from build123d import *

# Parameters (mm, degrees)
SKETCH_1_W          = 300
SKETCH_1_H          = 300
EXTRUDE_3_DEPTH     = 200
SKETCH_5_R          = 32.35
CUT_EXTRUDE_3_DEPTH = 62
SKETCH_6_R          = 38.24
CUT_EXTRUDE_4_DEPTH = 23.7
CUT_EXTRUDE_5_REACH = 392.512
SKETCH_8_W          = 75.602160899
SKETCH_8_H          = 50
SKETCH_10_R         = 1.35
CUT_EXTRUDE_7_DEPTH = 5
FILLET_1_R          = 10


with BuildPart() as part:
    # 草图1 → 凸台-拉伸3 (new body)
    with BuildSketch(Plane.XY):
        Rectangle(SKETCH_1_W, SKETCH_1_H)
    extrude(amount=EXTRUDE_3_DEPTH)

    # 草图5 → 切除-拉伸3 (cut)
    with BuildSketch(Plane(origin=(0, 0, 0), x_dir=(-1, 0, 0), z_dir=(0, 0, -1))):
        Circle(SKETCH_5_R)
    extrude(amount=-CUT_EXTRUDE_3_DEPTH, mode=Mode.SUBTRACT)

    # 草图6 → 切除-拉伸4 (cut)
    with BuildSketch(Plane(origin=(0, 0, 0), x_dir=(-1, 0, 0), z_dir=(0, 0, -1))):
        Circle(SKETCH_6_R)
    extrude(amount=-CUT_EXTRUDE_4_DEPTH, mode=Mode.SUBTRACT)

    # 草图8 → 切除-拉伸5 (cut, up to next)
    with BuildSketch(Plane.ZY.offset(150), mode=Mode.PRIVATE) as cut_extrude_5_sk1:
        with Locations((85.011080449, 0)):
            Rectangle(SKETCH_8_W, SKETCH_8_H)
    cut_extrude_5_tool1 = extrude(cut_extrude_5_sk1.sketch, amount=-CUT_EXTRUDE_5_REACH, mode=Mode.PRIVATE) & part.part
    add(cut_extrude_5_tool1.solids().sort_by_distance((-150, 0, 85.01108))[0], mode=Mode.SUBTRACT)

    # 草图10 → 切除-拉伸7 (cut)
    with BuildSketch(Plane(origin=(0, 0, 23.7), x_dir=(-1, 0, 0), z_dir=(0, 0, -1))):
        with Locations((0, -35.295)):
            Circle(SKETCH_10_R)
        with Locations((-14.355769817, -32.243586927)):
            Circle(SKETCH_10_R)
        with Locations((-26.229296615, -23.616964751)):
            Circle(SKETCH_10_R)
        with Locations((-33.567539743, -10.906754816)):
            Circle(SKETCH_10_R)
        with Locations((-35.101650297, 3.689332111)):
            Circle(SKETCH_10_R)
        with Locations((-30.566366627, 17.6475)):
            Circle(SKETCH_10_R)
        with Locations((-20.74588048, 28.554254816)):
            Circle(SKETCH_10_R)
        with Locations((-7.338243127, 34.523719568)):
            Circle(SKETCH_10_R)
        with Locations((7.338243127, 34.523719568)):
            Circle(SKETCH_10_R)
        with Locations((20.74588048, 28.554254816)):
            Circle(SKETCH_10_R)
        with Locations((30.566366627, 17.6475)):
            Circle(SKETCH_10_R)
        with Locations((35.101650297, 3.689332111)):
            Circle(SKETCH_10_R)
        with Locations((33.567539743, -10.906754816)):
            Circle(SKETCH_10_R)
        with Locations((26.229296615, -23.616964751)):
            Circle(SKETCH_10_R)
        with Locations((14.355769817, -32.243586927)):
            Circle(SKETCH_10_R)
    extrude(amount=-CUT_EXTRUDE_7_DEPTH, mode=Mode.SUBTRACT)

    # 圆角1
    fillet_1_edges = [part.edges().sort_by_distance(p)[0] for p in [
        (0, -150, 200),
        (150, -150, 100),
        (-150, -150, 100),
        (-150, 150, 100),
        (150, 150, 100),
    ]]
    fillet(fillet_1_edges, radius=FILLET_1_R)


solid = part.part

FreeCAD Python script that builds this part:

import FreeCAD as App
import Part
import Sketcher
from FreeCAD import Vector


def edges_at(feature, points):
    """Names of the edges that pass closest to the given points."""
    edges = feature.Shape.Edges
    near = lambda p: min(range(len(edges)), key=lambda i: edges[i].distToShape(Part.Vertex(*p))[0])
    return sorted({f"Edge{near(p) + 1}" for p in points})


def add_polygon(sketch, points):
    """Adds a closed chain of lines whose ends are joined by coincident constraints."""
    first, n = sketch.GeometryCount, len(points)
    for a, b in zip(points, points[1:] + points[:1]):
        sketch.addGeometry(Part.LineSegment(App.Vector(*a, 0), App.Vector(*b, 0)), False)
    for i in range(n):
        sketch.addConstraint(Sketcher.Constraint("Coincident", first + i, 2, first + (i + 1) % n, 1))

doc = App.newDocument("Part")
body = doc.addObject("PartDesign::Body", "Body")

# Sketch on XY plane
sketch1 = body.newObject("Sketcher::SketchObject", "Sketch")
sketch1.AttachmentSupport = (doc.getObject("XY_Plane"), [""])
sketch1.MapMode = "FlatFace"
add_polygon(sketch1, [(-150, 150), (-150, -150), (150, -150), (150, 150)])  # lines 0-3
sketch1.addConstraint([
    Sketcher.Constraint("Vertical", 0),
    Sketcher.Constraint("Horizontal", 1),
    Sketcher.Constraint("Vertical", 2),
    Sketcher.Constraint("Horizontal", 3),
    Sketcher.Constraint("Symmetric", 0, 2, 2, 2, -1, 1),
    Sketcher.Constraint("Equal", 3, 0),
    Sketcher.Constraint("DistanceX", 1, 1, 1, 2, 300.0),
])
pad1 = body.newObject("PartDesign::Pad", "Pad")
pad1.Profile = sketch1
pad1.Length = 200

# Sketch on XY plane
sketch2 = body.newObject("Sketcher::SketchObject", "Sketch001")
sketch2.AttachmentSupport = (doc.getObject("XY_Plane"), [""])
sketch2.MapMode = "FlatFace"
sketch2.addGeometry(Part.Circle(Vector(0, 0, 0), Vector(0, 0, 1), 32), False)
sketch2.addConstraint([
    Sketcher.Constraint("Coincident", 0, 3, -1, 1),
    Sketcher.Constraint("Diameter", 0, 64.7),
])
pocket1 = body.newObject("PartDesign::Pocket", "Pocket")
pocket1.Profile = sketch2
pocket1.Length = 62
pocket1.Reversed = True

# Sketch on XY plane
sketch3 = body.newObject("Sketcher::SketchObject", "Sketch002")
sketch3.AttachmentSupport = (doc.getObject("XY_Plane"), [""])
sketch3.MapMode = "FlatFace"
sketch3.addGeometry(Part.Circle(Vector(0, 0, 0), Vector(0, 0, 1), 38), False)
sketch3.addConstraint([
    Sketcher.Constraint("Coincident", 0, 3, -1, 1),
    Sketcher.Constraint("Diameter", 0, 76.48),
])
pocket2 = body.newObject("PartDesign::Pocket", "Pocket001")
pocket2.Profile = sketch3
pocket2.Length = 23.7
pocket2.Reversed = True

# Sketch on YZ plane
sketch4 = body.newObject("Sketcher::SketchObject", "Sketch003")
sketch4.AttachmentSupport = (doc.getObject("YZ_Plane"), [""])
sketch4.MapMode = "FlatFace"
sketch4.AttachmentOffset = App.Placement(Vector(0, 0, -150), App.Rotation())
add_polygon(sketch4, [(25, 47), (-25, 47), (-25, 123), (25, 123)])  # lines 0-3
sketch4.addConstraint([
    Sketcher.Constraint("Horizontal", 0),
    Sketcher.Constraint("Vertical", 1),
    Sketcher.Constraint("Horizontal", 2),
    Sketcher.Constraint("Vertical", 3),
    Sketcher.Constraint("DistanceX", 0, 2, 0, 1, 50.0),
    Sketcher.Constraint("DistanceX", 0, 2, -1, 1, 25.0),
    Sketcher.Constraint("DistanceY", -1, 1, 0, 2, 47.21),
    Sketcher.Constraint("DistanceY", 1, 1, 1, 2, 75.602161),
])
pocket3 = body.newObject("PartDesign::Pocket", "Pocket002")
pocket3.Profile = sketch4
pocket3.Type = "UpToFirst"
pocket3.Reversed = True

# Sketch on XY plane
sketch5 = body.newObject("Sketcher::SketchObject", "Sketch004")
sketch5.AttachmentSupport = (doc.getObject("XY_Plane"), [""])
sketch5.MapMode = "FlatFace"
sketch5.AttachmentOffset = App.Placement(Vector(0, 0, 23.7), App.Rotation())
sketch5.addGeometry([
    Part.Circle(Vector(0, -35.3, 0), Vector(0, 0, 1), 1.4),  # 0
    Part.Circle(Vector(14.4, -32.2, 0), Vector(0, 0, 1), 1.4),  # 1
    Part.Circle(Vector(26.2, -23.6, 0), Vector(0, 0, 1), 1.4),  # 2
    Part.Circle(Vector(33.6, -10.9, 0), Vector(0, 0, 1), 1.4),  # 3
    Part.Circle(Vector(35.1, 3.7, 0), Vector(0, 0, 1), 1.4),  # 4
    Part.Circle(Vector(30.6, 17.6, 0), Vector(0, 0, 1), 1.4),  # 5
    Part.Circle(Vector(20.7, 28.6, 0), Vector(0, 0, 1), 1.4),  # 6
    Part.Circle(Vector(7.3, 34.5, 0), Vector(0, 0, 1), 1.4),  # 7
    Part.Circle(Vector(-7.3, 34.5, 0), Vector(0, 0, 1), 1.4),  # 8
    Part.Circle(Vector(-20.7, 28.6, 0), Vector(0, 0, 1), 1.4),  # 9
    Part.Circle(Vector(-30.6, 17.6, 0), Vector(0, 0, 1), 1.4),  # 10
    Part.Circle(Vector(-35.1, 3.7, 0), Vector(0, 0, 1), 1.4),  # 11
    Part.Circle(Vector(-33.6, -10.9, 0), Vector(0, 0, 1), 1.4),  # 12
    Part.Circle(Vector(-26.2, -23.6, 0), Vector(0, 0, 1), 1.4),  # 13
    Part.Circle(Vector(-14.4, -32.2, 0), Vector(0, 0, 1), 1.4),  # 14
], False)
sketch5.addConstraint([
    Sketcher.Constraint("Equal", 0, 1),
    Sketcher.Constraint("Equal", 1, 2),
    Sketcher.Constraint("Equal", 2, 3),
    Sketcher.Constraint("Equal", 3, 4),
    Sketcher.Constraint("Equal", 4, 5),
    Sketcher.Constraint("Equal", 5, 6),
    Sketcher.Constraint("Equal", 6, 7),
    Sketcher.Constraint("Equal", 7, 8),
    Sketcher.Constraint("Equal", 8, 9),
    Sketcher.Constraint("Equal", 9, 10),
    Sketcher.Constraint("Equal", 10, 11),
    Sketcher.Constraint("Equal", 11, 12),
    Sketcher.Constraint("Equal", 12, 13),
    Sketcher.Constraint("Equal", 13, 14),
    Sketcher.Constraint("Symmetric", 7, 3, 8, 3, -2),
    Sketcher.Constraint("Symmetric", 6, 3, 9, 3, -2),
    Sketcher.Constraint("Symmetric", 5, 3, 10, 3, -2),
    Sketcher.Constraint("Symmetric", 4, 3, 11, 3, -2),
    Sketcher.Constraint("Symmetric", 3, 3, 12, 3, -2),
    Sketcher.Constraint("Symmetric", 2, 3, 13, 3, -2),
    Sketcher.Constraint("Symmetric", 1, 3, 14, 3, -2),
    Sketcher.Constraint("PointOnObject", 0, 3, -2),
    Sketcher.Constraint("Diameter", 0, 2.7),
    Sketcher.Constraint("DistanceY", 0, 3, -1, 1, 35.295),
    Sketcher.Constraint("DistanceY", -1, 1, 5, 3, 17.6475),
    Sketcher.Constraint("DistanceX", -1, 1, 1, 3, 14.35577),
    Sketcher.Constraint("DistanceX", -1, 1, 3, 3, 33.56754),
    Sketcher.Constraint("DistanceX", -1, 1, 4, 3, 35.10165),
    Sketcher.Constraint("DistanceX", -1, 1, 6, 3, 20.74588),
    Sketcher.Constraint("DistanceY", -1, 1, 7, 3, 34.52372),
    Sketcher.Constraint("DistanceY", 2, 3, 3, 3, 12.71021),
    Sketcher.Constraint("DistanceY", 1, 3, 4, 3, 35.932919),
    Sketcher.Constraint("DistanceX", 2, 3, 5, 3, 4.33707),
    Sketcher.Constraint("DistanceY", 3, 3, 6, 3, 39.46101),
    Sketcher.Constraint("DistanceY", 1, 3, 6, 3, 60.797842),
    Sketcher.Constraint("DistanceX", 8, 3, 5, 3, 37.90461),
    Sketcher.Constraint("DistanceY", 1, 3, -1, 1, 32.243587),
    Sketcher.Constraint("DistanceX", -1, 1, 2, 3, 26.229297),
])
pocket4 = body.newObject("PartDesign::Pocket", "Pocket003")
pocket4.Profile = sketch5
pocket4.Length = 5
pocket4.Reversed = True
doc.recompute()

fillet = body.newObject("PartDesign::Fillet", "Fillet")
fillet.Base = (pocket4, edges_at(pocket4, [
    (0, -150, 200),
    (150, -150, 100),
    (-150, -150, 100),
    (-150, 150, 100),
    (150, 150, 100),
]))
fillet.Radius = 10

doc.recompute()
